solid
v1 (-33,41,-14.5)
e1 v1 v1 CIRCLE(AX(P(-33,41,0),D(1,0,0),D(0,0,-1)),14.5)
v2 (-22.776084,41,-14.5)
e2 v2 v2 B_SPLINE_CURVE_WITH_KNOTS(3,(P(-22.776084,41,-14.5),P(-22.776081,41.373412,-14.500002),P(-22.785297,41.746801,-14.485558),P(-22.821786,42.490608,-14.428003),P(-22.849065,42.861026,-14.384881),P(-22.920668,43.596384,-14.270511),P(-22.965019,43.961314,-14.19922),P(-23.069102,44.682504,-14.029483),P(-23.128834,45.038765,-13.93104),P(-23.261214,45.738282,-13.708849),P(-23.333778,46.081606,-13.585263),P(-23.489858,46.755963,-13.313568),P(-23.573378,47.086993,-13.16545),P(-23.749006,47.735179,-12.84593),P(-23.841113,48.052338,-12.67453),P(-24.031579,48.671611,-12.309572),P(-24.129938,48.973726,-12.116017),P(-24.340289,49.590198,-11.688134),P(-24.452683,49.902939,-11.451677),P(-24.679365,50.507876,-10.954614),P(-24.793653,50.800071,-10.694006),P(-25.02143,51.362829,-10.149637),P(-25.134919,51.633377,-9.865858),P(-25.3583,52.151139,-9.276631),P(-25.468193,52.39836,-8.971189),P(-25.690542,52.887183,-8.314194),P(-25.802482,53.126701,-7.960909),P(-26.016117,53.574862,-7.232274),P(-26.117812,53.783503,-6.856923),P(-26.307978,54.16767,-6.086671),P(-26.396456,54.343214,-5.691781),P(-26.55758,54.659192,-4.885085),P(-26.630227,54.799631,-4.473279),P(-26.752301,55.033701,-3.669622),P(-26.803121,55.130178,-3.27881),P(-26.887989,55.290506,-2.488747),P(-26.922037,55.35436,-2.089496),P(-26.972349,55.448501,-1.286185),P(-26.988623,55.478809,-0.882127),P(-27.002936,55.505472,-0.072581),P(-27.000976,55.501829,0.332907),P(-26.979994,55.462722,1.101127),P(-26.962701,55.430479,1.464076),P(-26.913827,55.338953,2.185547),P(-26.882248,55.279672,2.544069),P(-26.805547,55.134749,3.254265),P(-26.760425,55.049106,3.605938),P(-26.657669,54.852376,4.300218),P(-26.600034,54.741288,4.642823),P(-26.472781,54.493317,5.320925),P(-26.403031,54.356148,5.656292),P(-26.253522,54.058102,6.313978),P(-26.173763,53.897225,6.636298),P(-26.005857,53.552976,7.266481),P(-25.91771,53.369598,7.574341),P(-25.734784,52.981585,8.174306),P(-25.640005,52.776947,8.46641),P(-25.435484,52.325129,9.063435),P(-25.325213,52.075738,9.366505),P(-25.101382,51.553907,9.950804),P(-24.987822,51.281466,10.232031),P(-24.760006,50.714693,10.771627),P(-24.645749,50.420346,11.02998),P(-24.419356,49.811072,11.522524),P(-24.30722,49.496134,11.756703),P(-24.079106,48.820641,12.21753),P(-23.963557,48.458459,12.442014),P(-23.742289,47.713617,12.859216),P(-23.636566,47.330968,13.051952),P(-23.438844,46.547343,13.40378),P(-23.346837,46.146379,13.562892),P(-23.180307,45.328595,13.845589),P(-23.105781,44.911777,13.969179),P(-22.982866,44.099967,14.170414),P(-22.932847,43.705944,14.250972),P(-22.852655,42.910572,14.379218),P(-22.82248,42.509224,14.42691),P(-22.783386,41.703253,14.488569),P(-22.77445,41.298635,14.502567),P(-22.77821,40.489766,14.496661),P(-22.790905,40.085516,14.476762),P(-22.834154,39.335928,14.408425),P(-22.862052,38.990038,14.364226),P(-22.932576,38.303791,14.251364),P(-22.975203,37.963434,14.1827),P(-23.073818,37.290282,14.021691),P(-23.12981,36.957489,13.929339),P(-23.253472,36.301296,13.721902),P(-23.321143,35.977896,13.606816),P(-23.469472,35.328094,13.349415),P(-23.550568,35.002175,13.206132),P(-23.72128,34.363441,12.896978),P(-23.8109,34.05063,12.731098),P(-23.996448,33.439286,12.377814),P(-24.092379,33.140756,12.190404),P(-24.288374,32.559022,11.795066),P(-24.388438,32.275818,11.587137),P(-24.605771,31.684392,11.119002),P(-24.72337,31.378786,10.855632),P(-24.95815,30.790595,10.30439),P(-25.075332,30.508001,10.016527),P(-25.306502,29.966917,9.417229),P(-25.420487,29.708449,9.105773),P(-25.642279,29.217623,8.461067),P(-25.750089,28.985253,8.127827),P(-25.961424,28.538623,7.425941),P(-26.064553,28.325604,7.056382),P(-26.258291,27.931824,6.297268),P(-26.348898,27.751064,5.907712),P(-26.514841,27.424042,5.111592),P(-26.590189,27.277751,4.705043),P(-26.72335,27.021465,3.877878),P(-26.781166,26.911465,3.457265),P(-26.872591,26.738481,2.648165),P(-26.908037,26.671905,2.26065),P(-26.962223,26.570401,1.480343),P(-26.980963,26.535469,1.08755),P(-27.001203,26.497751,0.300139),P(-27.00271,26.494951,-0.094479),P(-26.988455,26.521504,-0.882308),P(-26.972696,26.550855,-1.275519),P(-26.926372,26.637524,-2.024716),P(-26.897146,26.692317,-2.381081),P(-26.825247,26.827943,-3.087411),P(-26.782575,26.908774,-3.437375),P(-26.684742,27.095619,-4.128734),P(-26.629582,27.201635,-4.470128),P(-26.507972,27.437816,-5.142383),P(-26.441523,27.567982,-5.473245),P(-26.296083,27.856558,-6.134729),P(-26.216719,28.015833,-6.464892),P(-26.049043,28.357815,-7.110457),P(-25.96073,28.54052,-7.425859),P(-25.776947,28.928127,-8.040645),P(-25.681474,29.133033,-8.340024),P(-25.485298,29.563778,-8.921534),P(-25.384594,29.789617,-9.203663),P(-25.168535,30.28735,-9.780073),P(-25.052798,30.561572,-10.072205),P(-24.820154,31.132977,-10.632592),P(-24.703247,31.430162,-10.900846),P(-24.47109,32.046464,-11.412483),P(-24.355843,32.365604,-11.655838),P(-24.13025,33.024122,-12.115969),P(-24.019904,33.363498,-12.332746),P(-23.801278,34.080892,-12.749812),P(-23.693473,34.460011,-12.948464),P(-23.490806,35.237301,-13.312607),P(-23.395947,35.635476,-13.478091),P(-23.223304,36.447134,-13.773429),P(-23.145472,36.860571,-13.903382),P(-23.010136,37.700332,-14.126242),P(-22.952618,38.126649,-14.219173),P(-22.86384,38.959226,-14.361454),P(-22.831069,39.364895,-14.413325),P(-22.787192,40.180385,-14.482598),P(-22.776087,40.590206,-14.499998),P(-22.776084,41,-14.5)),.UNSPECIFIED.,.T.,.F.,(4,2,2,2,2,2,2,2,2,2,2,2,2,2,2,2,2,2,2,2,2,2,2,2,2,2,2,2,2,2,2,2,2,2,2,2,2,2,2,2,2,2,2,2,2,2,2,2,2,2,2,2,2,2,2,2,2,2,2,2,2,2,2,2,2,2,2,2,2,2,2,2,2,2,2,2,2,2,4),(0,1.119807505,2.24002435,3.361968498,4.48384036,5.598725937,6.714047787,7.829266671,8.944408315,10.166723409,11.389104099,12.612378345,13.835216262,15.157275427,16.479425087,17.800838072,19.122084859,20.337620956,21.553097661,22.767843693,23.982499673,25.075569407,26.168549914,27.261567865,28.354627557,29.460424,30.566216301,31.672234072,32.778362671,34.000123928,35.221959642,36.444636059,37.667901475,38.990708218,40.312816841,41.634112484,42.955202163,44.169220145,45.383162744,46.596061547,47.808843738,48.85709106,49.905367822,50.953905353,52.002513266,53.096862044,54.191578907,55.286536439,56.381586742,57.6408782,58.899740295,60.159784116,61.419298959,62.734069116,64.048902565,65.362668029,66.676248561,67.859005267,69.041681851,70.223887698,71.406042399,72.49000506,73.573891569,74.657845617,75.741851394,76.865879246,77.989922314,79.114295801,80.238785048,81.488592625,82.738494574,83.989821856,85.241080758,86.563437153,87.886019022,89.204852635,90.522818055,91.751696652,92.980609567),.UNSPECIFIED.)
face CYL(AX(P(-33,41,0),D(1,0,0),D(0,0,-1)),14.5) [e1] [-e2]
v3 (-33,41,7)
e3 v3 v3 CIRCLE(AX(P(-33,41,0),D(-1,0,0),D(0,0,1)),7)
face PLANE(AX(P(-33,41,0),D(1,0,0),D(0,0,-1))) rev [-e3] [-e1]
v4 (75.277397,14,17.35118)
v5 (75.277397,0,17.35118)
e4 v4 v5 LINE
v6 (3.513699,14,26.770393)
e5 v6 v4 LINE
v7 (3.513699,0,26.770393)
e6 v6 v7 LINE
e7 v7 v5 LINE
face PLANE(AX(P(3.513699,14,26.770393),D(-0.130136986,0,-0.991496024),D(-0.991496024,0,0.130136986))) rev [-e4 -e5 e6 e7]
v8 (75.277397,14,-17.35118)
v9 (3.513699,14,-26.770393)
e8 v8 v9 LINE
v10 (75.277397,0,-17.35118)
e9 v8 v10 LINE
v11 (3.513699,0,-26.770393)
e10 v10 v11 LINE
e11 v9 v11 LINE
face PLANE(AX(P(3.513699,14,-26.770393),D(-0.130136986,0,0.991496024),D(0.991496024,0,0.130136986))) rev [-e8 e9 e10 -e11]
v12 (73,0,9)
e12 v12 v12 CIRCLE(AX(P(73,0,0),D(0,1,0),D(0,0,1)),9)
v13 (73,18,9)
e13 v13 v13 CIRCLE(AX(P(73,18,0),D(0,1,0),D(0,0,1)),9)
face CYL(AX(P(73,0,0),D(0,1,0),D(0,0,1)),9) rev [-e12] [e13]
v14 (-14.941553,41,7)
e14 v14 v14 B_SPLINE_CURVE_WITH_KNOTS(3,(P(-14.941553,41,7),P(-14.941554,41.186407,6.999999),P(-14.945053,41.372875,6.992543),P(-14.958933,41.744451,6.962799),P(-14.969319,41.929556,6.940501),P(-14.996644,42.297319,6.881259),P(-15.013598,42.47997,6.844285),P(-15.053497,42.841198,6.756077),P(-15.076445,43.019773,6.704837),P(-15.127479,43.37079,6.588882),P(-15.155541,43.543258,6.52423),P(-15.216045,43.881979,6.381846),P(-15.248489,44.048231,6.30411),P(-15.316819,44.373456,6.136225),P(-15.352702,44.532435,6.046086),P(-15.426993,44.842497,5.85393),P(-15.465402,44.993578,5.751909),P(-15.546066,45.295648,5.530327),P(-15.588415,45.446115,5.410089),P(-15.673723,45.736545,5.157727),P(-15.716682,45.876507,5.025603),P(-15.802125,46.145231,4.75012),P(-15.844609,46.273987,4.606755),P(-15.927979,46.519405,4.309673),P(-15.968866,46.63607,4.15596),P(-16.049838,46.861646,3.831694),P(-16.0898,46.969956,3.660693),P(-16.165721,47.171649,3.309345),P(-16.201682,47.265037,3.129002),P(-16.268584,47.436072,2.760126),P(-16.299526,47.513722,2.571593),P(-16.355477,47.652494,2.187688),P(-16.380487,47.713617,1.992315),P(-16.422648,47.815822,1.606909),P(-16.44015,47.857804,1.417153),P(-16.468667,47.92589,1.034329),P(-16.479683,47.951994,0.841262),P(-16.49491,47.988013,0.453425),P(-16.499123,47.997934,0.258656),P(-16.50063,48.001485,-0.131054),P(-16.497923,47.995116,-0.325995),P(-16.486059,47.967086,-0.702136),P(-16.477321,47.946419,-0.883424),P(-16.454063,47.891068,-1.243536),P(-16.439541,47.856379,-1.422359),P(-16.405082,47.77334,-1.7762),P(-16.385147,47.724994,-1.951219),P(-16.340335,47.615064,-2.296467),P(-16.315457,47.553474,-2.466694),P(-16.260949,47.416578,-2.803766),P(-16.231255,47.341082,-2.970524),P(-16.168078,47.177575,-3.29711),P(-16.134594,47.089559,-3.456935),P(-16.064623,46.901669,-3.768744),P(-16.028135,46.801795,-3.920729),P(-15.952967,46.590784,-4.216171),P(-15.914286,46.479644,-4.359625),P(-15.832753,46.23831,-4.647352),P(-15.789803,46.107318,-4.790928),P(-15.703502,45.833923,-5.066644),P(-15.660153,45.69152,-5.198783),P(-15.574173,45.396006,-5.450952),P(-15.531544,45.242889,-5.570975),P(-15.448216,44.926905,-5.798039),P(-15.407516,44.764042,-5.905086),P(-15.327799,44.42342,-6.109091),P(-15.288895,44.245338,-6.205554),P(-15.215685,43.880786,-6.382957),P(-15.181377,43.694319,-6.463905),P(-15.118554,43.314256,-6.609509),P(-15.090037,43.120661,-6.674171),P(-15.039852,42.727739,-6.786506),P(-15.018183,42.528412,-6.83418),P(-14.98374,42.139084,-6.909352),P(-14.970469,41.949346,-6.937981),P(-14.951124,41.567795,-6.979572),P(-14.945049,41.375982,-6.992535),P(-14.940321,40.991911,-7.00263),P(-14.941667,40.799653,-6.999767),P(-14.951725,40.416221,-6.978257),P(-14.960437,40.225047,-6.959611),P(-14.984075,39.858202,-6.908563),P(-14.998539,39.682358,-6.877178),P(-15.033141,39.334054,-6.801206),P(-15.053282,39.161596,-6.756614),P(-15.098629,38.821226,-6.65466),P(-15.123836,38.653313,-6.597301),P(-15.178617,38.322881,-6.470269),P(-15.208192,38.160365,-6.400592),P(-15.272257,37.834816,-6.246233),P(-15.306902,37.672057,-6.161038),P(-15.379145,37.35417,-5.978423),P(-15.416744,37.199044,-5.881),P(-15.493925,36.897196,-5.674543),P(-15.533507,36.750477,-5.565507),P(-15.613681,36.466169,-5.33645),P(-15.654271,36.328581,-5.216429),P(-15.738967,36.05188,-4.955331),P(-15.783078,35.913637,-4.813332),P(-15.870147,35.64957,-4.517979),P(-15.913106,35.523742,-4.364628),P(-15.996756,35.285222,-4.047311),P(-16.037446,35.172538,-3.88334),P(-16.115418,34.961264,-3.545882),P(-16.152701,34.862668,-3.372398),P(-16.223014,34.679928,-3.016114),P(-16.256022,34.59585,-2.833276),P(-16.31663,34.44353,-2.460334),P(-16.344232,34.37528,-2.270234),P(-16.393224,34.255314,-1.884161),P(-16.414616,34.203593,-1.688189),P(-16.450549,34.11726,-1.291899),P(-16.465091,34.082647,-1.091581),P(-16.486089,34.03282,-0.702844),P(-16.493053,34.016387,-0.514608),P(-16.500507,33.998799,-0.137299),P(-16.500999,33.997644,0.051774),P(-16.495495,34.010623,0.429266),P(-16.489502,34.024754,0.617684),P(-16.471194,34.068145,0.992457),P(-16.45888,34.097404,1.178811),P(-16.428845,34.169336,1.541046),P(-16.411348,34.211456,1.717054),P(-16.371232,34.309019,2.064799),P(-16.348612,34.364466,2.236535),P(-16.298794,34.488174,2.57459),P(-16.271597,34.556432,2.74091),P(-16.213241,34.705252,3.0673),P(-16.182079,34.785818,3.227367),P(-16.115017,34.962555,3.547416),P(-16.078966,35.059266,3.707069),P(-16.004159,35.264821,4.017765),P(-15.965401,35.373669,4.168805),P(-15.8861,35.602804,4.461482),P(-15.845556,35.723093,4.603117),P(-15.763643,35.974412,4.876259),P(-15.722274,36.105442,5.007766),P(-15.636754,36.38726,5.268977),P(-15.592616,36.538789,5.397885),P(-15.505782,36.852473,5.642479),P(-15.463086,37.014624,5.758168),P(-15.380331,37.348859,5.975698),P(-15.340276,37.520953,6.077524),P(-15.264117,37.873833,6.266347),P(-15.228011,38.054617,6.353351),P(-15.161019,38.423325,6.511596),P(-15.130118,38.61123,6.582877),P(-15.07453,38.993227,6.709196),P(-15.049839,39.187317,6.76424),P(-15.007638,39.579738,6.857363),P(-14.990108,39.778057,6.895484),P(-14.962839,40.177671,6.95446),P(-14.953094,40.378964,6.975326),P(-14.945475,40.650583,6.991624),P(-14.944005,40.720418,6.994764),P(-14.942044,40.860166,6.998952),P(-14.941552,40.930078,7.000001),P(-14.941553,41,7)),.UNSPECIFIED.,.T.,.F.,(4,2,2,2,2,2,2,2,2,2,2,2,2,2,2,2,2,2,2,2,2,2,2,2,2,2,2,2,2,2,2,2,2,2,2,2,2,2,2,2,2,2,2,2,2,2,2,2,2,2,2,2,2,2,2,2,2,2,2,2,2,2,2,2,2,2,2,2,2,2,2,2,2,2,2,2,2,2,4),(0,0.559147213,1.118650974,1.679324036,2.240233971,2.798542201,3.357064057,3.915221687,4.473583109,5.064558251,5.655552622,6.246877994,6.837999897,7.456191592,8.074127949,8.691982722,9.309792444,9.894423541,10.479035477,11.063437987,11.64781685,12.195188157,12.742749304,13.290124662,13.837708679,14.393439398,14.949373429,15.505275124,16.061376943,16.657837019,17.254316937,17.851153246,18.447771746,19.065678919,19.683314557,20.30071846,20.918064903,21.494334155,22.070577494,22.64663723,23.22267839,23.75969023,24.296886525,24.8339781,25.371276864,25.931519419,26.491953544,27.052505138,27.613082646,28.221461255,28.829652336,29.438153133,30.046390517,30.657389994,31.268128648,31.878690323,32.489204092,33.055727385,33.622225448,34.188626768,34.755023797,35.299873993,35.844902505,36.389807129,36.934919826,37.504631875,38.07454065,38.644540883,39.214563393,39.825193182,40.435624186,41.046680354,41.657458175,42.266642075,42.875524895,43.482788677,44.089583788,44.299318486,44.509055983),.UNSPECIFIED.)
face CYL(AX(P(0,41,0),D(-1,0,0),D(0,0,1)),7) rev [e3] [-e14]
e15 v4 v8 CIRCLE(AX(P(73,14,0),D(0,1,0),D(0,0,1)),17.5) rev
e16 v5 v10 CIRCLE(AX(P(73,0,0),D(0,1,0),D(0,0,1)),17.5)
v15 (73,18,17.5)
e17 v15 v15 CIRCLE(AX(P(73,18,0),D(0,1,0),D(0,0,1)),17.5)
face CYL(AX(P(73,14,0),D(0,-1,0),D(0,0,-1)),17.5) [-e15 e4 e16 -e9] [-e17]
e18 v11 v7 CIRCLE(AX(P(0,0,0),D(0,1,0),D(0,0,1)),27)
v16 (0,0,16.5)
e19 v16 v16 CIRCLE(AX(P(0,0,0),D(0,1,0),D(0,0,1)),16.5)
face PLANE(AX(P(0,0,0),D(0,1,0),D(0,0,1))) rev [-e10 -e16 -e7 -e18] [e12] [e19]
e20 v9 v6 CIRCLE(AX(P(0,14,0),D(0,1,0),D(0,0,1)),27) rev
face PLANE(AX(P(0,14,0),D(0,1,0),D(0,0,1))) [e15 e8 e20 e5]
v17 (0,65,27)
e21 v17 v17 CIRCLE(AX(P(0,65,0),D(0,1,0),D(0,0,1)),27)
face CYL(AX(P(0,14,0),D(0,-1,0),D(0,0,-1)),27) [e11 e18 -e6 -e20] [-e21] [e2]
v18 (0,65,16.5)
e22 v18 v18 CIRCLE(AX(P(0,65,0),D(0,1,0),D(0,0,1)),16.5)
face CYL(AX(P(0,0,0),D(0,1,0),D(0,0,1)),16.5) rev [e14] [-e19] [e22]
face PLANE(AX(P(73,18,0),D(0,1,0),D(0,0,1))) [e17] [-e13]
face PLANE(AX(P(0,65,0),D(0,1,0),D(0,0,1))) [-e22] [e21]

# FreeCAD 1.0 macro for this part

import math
import FreeCAD as App
import Part
import Sketcher
from FreeCAD import Vector

doc = App.newDocument("Part")
body = doc.addObject("PartDesign::Body", "Body")

# Sketch on XZ plane
sketch1 = body.newObject("Sketcher::SketchObject", "Sketch")
sketch1.AttachmentSupport = (doc.getObject("XZ_Plane"), [""])
sketch1.MapMode = "FlatFace"
sketch1.addGeometry([
    Part.LineSegment(Vector(4, 27, 0), Vector(75, 17, 0)),
    Part.ArcOfCircle(Part.Circle(Vector(73, 0, 0), Vector(0, 0, 1), 18), math.radians(-83), math.radians(83)),
    Part.LineSegment(Vector(75, -17, 0), Vector(4, -27, 0)),
    Part.ArcOfCircle(Part.Circle(Vector(0, 0, 0), Vector(0, 0, 1), 27), math.radians(83), math.radians(277)),
], False)
sketch1.addConstraint([
    Sketcher.Constraint("Tangent", 0, 2, 1, 2),
    Sketcher.Constraint("Tangent", 1, 1, 2, 1),
    Sketcher.Constraint("Tangent", 2, 2, 3, 2),
    Sketcher.Constraint("Tangent", 3, 1, 0, 1),
    Sketcher.Constraint("Coincident", 3, 3, -1, 1),
    Sketcher.Constraint("PointOnObject", 1, 3, -1),
    Sketcher.Constraint("Radius", 3, 27.0),
    Sketcher.Constraint("Radius", 1, 17.5),
    Sketcher.Constraint("DistanceX", -1, 1, 1, 3, 73.0),
])
pad1 = body.newObject("PartDesign::Pad", "Pad")
pad1.Profile = sketch1
pad1.Length = 14
pad1.Reversed = True

# Sketch on XZ plane
sketch2 = body.newObject("Sketcher::SketchObject", "Sketch001")
sketch2.AttachmentSupport = (doc.getObject("XZ_Plane"), [""])
sketch2.MapMode = "FlatFace"
sketch2.addGeometry(Part.Circle(Vector(0, 0, 0), Vector(0, 0, 1), 27), False)
sketch2.addConstraint([
    Sketcher.Constraint("Coincident", 0, 3, -1, 1),
    Sketcher.Constraint("Diameter", 0, 54.0),
])
pad2 = body.newObject("PartDesign::Pad", "Pad001")
pad2.Profile = sketch2
pad2.Length = 65
pad2.Reversed = True

# Sketch on XZ plane
sketch3 = body.newObject("Sketcher::SketchObject", "Sketch002")
sketch3.AttachmentSupport = (doc.getObject("XZ_Plane"), [""])
sketch3.MapMode = "FlatFace"
sketch3.addGeometry(Part.Circle(Vector(73, 0, 0), Vector(0, 0, 1), 18), False)
sketch3.addConstraint([
    Sketcher.Constraint("PointOnObject", 0, 3, -1),
    Sketcher.Constraint("Diameter", 0, 35.0),
    Sketcher.Constraint("DistanceX", -1, 1, 0, 3, 73.0),
])
pad3 = body.newObject("PartDesign::Pad", "Pad002")
pad3.Profile = sketch3
pad3.Length = 18
pad3.Reversed = True

# Sketch on YZ plane
sketch4 = body.newObject("Sketcher::SketchObject", "Sketch003")
sketch4.AttachmentSupport = (doc.getObject("YZ_Plane"), [""])
sketch4.MapMode = "FlatFace"
sketch4.addGeometry(Part.Circle(Vector(41, 0, 0), Vector(0, 0, 1), 14), False)
sketch4.addConstraint([
    Sketcher.Constraint("PointOnObject", 0, 3, -1),
    Sketcher.Constraint("Diameter", 0, 29.0),
    Sketcher.Constraint("DistanceX", -1, 1, 0, 3, 41.0),
])
pad4 = body.newObject("PartDesign::Pad", "Pad003")
pad4.Profile = sketch4
pad4.Length = 33
pad4.Reversed = True

# Sketch on XZ plane
sketch5 = body.newObject("Sketcher::SketchObject", "Sketch004")
sketch5.AttachmentSupport = (doc.getObject("XZ_Plane"), [""])
sketch5.MapMode = "FlatFace"
sketch5.AttachmentOffset = App.Placement(Vector(0, 0, -65), App.Rotation())
sketch5.addGeometry(Part.Circle(Vector(0, 0, 0), Vector(0, 0, 1), 16), False)
sketch5.addConstraint([
    Sketcher.Constraint("Coincident", 0, 3, -1, 1),
    Sketcher.Constraint("Diameter", 0, 33.0),
])
pocket1 = body.newObject("PartDesign::Pocket", "Pocket")
pocket1.Profile = sketch5
pocket1.Type = "ThroughAll"
pocket1.Reversed = True

# Sketch on XZ plane
sketch6 = body.newObject("Sketcher::SketchObject", "Sketch005")
sketch6.AttachmentSupport = (doc.getObject("XZ_Plane"), [""])
sketch6.MapMode = "FlatFace"
sketch6.AttachmentOffset = App.Placement(Vector(0, 0, -18), App.Rotation())
sketch6.addGeometry(Part.Circle(Vector(73, 0, 0), Vector(0, 0, 1), 9), False)
sketch6.addConstraint([
    Sketcher.Constraint("PointOnObject", 0, 3, -1),
    Sketcher.Constraint("Diameter", 0, 18.0),
    Sketcher.Constraint("DistanceX", -1, 1, 0, 3, 73.0),
])
pocket2 = body.newObject("PartDesign::Pocket", "Pocket001")
pocket2.Profile = sketch6
pocket2.Type = "ThroughAll"
pocket2.Reversed = True

# Sketch on YZ plane
sketch7 = body.newObject("Sketcher::SketchObject", "Sketch006")
sketch7.AttachmentSupport = (doc.getObject("YZ_Plane"), [""])
sketch7.MapMode = "FlatFace"
sketch7.AttachmentOffset = App.Placement(Vector(0, 0, -33), App.Rotation())
sketch7.addGeometry(Part.Circle(Vector(41, 0, 0), Vector(0, 0, 1), 7), False)
sketch7.addConstraint([
    Sketcher.Constraint("PointOnObject", 0, 3, -1),
    Sketcher.Constraint("Diameter", 0, 14.0),
    Sketcher.Constraint("DistanceX", -1, 1, 0, 3, 41.0),
])
pocket3 = body.newObject("PartDesign::Pocket", "Pocket002")
pocket3.Profile = sketch7
pocket3.Length = 33
pocket3.Reversed = True

doc.recompute()
